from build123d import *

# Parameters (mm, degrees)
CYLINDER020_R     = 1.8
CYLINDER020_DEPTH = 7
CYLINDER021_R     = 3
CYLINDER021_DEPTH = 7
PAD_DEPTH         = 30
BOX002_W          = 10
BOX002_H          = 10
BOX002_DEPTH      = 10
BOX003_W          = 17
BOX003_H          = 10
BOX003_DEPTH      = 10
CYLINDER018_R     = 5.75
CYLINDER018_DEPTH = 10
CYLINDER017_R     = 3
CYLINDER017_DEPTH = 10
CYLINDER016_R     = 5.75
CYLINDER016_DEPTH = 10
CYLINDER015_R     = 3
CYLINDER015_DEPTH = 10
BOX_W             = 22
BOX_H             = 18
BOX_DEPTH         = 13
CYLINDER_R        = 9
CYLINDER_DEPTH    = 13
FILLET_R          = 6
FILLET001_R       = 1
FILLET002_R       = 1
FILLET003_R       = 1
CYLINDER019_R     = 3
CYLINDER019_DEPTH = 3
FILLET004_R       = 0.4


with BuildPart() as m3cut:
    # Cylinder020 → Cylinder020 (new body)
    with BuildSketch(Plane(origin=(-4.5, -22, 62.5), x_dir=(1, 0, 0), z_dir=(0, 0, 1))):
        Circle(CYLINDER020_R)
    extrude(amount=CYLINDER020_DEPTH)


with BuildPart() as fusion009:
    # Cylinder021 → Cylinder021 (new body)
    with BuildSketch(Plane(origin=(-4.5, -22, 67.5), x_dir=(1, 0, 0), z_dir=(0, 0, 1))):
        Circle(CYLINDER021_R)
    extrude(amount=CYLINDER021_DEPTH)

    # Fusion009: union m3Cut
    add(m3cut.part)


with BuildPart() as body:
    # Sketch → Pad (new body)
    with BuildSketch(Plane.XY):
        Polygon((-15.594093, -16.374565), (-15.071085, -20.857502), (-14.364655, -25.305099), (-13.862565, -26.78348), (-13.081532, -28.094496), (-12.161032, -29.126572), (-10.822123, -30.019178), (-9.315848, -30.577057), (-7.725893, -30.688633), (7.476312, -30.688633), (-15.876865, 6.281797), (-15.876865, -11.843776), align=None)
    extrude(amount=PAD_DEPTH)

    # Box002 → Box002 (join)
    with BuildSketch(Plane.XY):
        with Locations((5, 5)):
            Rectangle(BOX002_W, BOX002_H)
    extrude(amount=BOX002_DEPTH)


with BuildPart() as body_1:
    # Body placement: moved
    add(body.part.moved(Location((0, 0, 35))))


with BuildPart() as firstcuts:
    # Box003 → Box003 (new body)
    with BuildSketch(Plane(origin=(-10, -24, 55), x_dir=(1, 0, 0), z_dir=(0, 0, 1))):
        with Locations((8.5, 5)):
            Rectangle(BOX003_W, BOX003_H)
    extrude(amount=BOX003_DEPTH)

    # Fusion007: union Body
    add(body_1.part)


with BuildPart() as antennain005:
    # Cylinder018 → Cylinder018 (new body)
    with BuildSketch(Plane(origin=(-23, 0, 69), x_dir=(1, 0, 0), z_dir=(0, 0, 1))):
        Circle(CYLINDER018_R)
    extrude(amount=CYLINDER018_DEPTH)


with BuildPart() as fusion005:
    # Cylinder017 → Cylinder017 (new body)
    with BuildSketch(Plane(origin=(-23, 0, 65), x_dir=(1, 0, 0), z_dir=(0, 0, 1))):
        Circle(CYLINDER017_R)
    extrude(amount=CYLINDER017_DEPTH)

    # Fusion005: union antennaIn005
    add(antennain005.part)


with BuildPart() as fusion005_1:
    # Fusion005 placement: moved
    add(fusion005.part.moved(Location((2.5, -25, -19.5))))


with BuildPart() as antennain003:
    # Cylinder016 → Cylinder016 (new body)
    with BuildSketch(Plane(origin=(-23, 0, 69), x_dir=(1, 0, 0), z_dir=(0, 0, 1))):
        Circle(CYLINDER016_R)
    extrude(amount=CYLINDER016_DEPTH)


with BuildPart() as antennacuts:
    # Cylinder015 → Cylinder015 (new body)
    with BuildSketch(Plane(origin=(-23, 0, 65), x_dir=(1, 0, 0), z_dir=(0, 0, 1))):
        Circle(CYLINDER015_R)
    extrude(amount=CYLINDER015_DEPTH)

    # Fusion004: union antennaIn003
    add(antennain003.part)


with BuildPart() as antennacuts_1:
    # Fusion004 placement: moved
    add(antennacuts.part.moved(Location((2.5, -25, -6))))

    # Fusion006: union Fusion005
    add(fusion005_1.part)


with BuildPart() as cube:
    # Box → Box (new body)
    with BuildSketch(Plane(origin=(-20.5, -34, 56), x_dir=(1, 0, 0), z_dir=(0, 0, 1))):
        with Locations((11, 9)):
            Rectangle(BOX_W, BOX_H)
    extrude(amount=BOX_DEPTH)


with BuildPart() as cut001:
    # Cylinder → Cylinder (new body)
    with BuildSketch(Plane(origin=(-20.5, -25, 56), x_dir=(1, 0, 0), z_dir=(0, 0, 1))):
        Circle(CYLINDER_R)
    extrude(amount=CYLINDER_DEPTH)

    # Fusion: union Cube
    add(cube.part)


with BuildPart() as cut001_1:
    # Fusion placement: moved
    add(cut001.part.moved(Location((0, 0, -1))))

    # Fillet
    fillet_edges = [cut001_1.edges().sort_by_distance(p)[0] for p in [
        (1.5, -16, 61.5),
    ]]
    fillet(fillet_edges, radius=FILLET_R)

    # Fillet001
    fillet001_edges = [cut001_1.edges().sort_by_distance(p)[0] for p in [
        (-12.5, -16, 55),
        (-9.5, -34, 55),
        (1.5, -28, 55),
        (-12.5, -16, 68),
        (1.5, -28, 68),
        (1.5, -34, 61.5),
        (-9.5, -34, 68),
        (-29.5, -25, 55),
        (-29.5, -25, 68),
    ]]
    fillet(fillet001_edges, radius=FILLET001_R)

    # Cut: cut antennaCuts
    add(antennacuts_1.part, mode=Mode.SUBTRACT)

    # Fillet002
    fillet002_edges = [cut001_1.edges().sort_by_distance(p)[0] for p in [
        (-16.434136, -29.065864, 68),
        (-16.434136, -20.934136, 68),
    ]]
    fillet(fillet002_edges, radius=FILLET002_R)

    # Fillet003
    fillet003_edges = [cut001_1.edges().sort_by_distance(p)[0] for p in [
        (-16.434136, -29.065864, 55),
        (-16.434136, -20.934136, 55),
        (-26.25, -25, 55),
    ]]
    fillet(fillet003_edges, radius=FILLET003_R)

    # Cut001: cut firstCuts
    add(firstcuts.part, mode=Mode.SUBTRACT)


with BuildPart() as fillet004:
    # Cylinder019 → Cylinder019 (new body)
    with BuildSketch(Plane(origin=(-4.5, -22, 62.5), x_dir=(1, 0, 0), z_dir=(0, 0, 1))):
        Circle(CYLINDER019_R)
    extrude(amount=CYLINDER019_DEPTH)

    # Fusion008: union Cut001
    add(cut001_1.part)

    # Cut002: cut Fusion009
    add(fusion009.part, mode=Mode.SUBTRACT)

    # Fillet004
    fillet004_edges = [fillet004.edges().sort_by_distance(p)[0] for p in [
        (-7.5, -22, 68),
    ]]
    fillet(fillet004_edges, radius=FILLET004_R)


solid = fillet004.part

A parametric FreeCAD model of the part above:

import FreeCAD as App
import Part
import Sketcher
from FreeCAD import Vector


def edges_at(feature, points):
    """Names of the edges that pass closest to the given points."""
    edges = feature.Shape.Edges
    near = lambda p: min(range(len(edges)), key=lambda i: edges[i].distToShape(Part.Vertex(*p))[0])
    return sorted({f"Edge{near(p) + 1}" for p in points})


def add_polygon(sketch, points):
    """Adds a closed chain of lines whose ends are joined by coincident constraints."""
    first, n = sketch.GeometryCount, len(points)
    for a, b in zip(points, points[1:] + points[:1]):
        sketch.addGeometry(Part.LineSegment(App.Vector(*a, 0), App.Vector(*b, 0)), False)
    for i in range(n):
        sketch.addConstraint(Sketcher.Constraint("Coincident", first + i, 2, first + (i + 1) % n, 1))

doc = App.newDocument("Part")
params = doc.addObject("Spreadsheet::Sheet", "Params")
for row, (alias, value) in enumerate([
    ("sketch1_diameter", "3.6 mm"),
    ("pad1_length", "7 mm"),
    ("sketch2_diameter", "6 mm"),
    ("pad2_length", "7 mm"),
    ("pad3_length", "30 mm"),
    ("sketch4_width", "10 mm"),
    ("pad4_length", "10 mm"),
    ("sketch5_width", "17 mm"),
    ("sketch5_height", "10 mm"),
    ("pad5_length", "10 mm"),
    ("sketch6_diameter", "11.5 mm"),
    ("pad6_length", "10 mm"),
    ("sketch7_diameter", "6 mm"),
    ("pad7_length", "10 mm"),
    ("sketch8_diameter", "11.5 mm"),
    ("pad8_length", "10 mm"),
    ("sketch9_diameter", "6 mm"),
    ("pad9_length", "10 mm"),
    ("sketch10_width", "22 mm"),
    ("sketch10_height", "18 mm"),
    ("pad10_length", "13 mm"),
    ("sketch11_diameter", "18 mm"),
    ("pad11_length", "13 mm"),
    ("fillet_radius", "6 mm"),
    ("fillet2_radius", "1 mm"),
    ("fillet3_radius", "1 mm"),
    ("fillet4_radius", "1 mm"),
    ("sketch12_diameter", "6 mm"),
    ("pad12_length", "3 mm"),
    ("fillet5_radius", "0.4 mm"),
], start=1):
    params.set(f"A{row}", alias)
    params.set(f"B{row}", "=" + value)
    params.setAlias(f"B{row}", alias)

body = doc.addObject("PartDesign::Body", "Body")

# Sketch on XY plane
sketch1 = body.newObject("Sketcher::SketchObject", "Sketch")
sketch1.AttachmentSupport = (doc.getObject("XY_Plane"), [""])
sketch1.MapMode = "FlatFace"
sketch1.AttachmentOffset = App.Placement(Vector(0, 0, 62.5), App.Rotation())
sketch1.addGeometry(Part.Circle(Vector(-4.5, -22, 0), Vector(0, 0, 1), 1.8), False)
sketch1.addConstraint(Sketcher.Constraint("Diameter", 0, 3.6))
sketch1.addConstraint(Sketcher.Constraint("DistanceY", 0, 3, -1, 1, 22.0))
sketch1.addConstraint(Sketcher.Constraint("DistanceX", 0, 3, -1, 1, 4.5))
sketch1.setExpression("Constraints[0]", "Params.sketch1_diameter")
pad1 = body.newObject("PartDesign::Pad", "Pad")
pad1.Profile = sketch1
pad1.setExpression("Length", "Params.pad1_length")
body2 = doc.addObject("PartDesign::Body", "Body001")

# Sketch on XY plane
sketch2 = body2.newObject("Sketcher::SketchObject", "Sketch001")
sketch2.AttachmentSupport = (doc.getObject("XY_Plane001"), [""])
sketch2.MapMode = "FlatFace"
sketch2.AttachmentOffset = App.Placement(Vector(0, 0, 67.5), App.Rotation())
sketch2.addGeometry(Part.Circle(Vector(-4.5, -22, 0), Vector(0, 0, 1), 3), False)
sketch2.addConstraint(Sketcher.Constraint("Diameter", 0, 6.0))
sketch2.addConstraint(Sketcher.Constraint("DistanceY", 0, 3, -1, 1, 22.0))
sketch2.addConstraint(Sketcher.Constraint("DistanceX", 0, 3, -1, 1, 4.5))
sketch2.setExpression("Constraints[0]", "Params.sketch2_diameter")
pad2 = body2.newObject("PartDesign::Pad", "Pad001")
pad2.Profile = sketch2
pad2.setExpression("Length", "Params.pad2_length")
doc.recompute()

boolean = body2.newObject("PartDesign::Boolean", "Boolean")
boolean.Type = "Fuse"
boolean.addObjects([body])
body3 = doc.addObject("PartDesign::Body", "Body002")
body3.AllowCompound = True

# Sketch on XY plane
sketch3 = body3.newObject("Sketcher::SketchObject", "Sketch002")
sketch3.AttachmentSupport = (doc.getObject("XY_Plane002"), [""])
sketch3.MapMode = "FlatFace"
add_polygon(sketch3, [(-15.6, -16.4), (-15.1, -20.9), (-14.4, -25.3), (-13.9, -26.8), (-13.1, -28.1), (-12.2, -29.1), (-10.8, -30), (-9.3, -30.6), (-7.7, -30.7), (7.5, -30.7), (-15.9, 6.3), (-15.9, -11.8)])  # lines 0-11
sketch3.addConstraint(Sketcher.Constraint("Horizontal", 8))
sketch3.addConstraint(Sketcher.Constraint("Vertical", 10))
sketch3.addConstraint(Sketcher.Constraint("DistanceY", 0, 2, -1, 1, 20.857502))
sketch3.addConstraint(Sketcher.Constraint("DistanceY", 1, 2, -1, 1, 25.305099))
sketch3.addConstraint(Sketcher.Constraint("DistanceX", 3, 2, 4, 2, 0.9205))
sketch3.addConstraint(Sketcher.Constraint("DistanceY", 0, 2, 9, 2, 27.139299))
sketch3.addConstraint(Sketcher.Constraint("DistanceX", 9, 2, 2, 2, 2.0143))
sketch3.addConstraint(Sketcher.Constraint("Distance", 1, 4.50335))
sketch3.addConstraint(Sketcher.Constraint("Distance", 5, 1.609168))
sketch3.addConstraint(Sketcher.Constraint("Distance", 9, 43.728521))
sketch3.addConstraint(Sketcher.Constraint("DistanceX", 8, 1, 8, 2, 15.202205))
sketch3.addConstraint(Sketcher.Constraint("DistanceY", 10, 2, 10, 1, 18.125573))
sketch3.addConstraint(Sketcher.Constraint("DistanceY", 2, 2, -1, 1, 26.78348))
sketch3.addConstraint(Sketcher.Constraint("DistanceX", 3, 2, -1, 1, 13.081532))
sketch3.addConstraint(Sketcher.Constraint("DistanceY", 4, 2, -1, 1, 29.126572))
sketch3.addConstraint(Sketcher.Constraint("DistanceY", 5, 2, -1, 1, 30.019178))
sketch3.addConstraint(Sketcher.Constraint("DistanceX", 6, 2, -1, 1, 9.315848))
sketch3.addConstraint(Sketcher.Constraint("DistanceX", 1, 2, 2, 2, 0.50209))
sketch3.addConstraint(Sketcher.Constraint("DistanceY", 6, 2, 5, 2, 0.557879))
sketch3.addConstraint(Sketcher.Constraint("DistanceY", 6, 2, 3, 2, 2.482561))
sketch3.addConstraint(Sketcher.Constraint("DistanceX", 5, 2, 7, 2, 3.09623))
sketch3.addConstraint(Sketcher.Constraint("DistanceY", 7, 2, 4, 2, 1.562061))
sketch3.addConstraint(Sketcher.Constraint("DistanceX", 11, 2, 0, 2, 0.523008))
sketch3.addConstraint(Sketcher.Constraint("DistanceY", 11, 2, 10, 2, 4.530789))
pad3 = body3.newObject("PartDesign::Pad", "Pad002")
pad3.Profile = sketch3
pad3.setExpression("Length", "Params.pad3_length")

# Sketch on XY plane
sketch4 = body3.newObject("Sketcher::SketchObject", "Sketch003")
sketch4.AttachmentSupport = (doc.getObject("XY_Plane002"), [""])
sketch4.MapMode = "FlatFace"
add_polygon(sketch4, [(0, 10), (0, 0), (10, 0), (10, 10)])  # lines 0-3
sketch4.addConstraint(Sketcher.Constraint("Vertical", 0))
sketch4.addConstraint(Sketcher.Constraint("Horizontal", 1))
sketch4.addConstraint(Sketcher.Constraint("Vertical", 2))
sketch4.addConstraint(Sketcher.Constraint("Horizontal", 3))
sketch4.addConstraint(Sketcher.Constraint("Coincident", 0, 2, -1, 1))
sketch4.addConstraint(Sketcher.Constraint("Equal", 3, 0))
sketch4.addConstraint(Sketcher.Constraint("DistanceX", 1, 1, 1, 2, 10.0))
sketch4.setExpression("Constraints[10]", "Params.sketch4_width")
pad4 = body3.newObject("PartDesign::Pad", "Pad003")
pad4.Profile = sketch4
pad4.setExpression("Length", "Params.pad4_length")
body4 = doc.addObject("PartDesign::Body", "Body003")
body4.AllowCompound = True
doc.recompute()

body3.Placement = App.Placement(Vector(0, 0, 35), App.Rotation(Vector(0, 0, 1), 0))
boolean2 = body4.newObject("PartDesign::Boolean", "Boolean001")
boolean2.Type = "Fuse"
boolean2.addObjects([body3])
body5 = doc.addObject("PartDesign::Body", "Body004")
body5.AllowCompound = True

# Sketch on XY plane
sketch5 = body5.newObject("Sketcher::SketchObject", "Sketch004")
sketch5.AttachmentSupport = (doc.getObject("XY_Plane004"), [""])
sketch5.MapMode = "FlatFace"
sketch5.AttachmentOffset = App.Placement(Vector(0, 0, 55), App.Rotation())
add_polygon(sketch5, [(-10, -14), (-10, -24), (7, -24), (7, -14)])  # lines 0-3
sketch5.addConstraint(Sketcher.Constraint("Vertical", 0))
sketch5.addConstraint(Sketcher.Constraint("Horizontal", 1))
sketch5.addConstraint(Sketcher.Constraint("Vertical", 2))
sketch5.addConstraint(Sketcher.Constraint("Horizontal", 3))
sketch5.addConstraint(Sketcher.Constraint("DistanceX", 1, 1, 1, 2, 17.0))
sketch5.addConstraint(Sketcher.Constraint("DistanceY", 0, 2, 0, 1, 10.0))
sketch5.addConstraint(Sketcher.Constraint("DistanceX", 0, 2, -1, 1, 10.0))
sketch5.addConstraint(Sketcher.Constraint("DistanceY", 0, 2, -1, 1, 24.0))
sketch5.setExpression("Constraints[8]", "Params.sketch5_width")
sketch5.setExpression("Constraints[9]", "Params.sketch5_height")
pad5 = body5.newObject("PartDesign::Pad", "Pad004")
pad5.Profile = sketch5
pad5.setExpression("Length", "Params.pad5_length")
doc.recompute()

boolean3 = body5.newObject("PartDesign::Boolean", "Boolean002")
boolean3.Type = "Fuse"
boolean3.addObjects([body4])
body6 = doc.addObject("PartDesign::Body", "Body005")

# Sketch on XY plane
sketch6 = body6.newObject("Sketcher::SketchObject", "Sketch005")
sketch6.AttachmentSupport = (doc.getObject("XY_Plane005"), [""])
sketch6.MapMode = "FlatFace"
sketch6.AttachmentOffset = App.Placement(Vector(0, 0, 69), App.Rotation())
sketch6.addGeometry(Part.Circle(Vector(-23, 0, 0), Vector(0, 0, 1), 6), False)
sketch6.addConstraint(Sketcher.Constraint("PointOnObject", 0, 3, -1))
sketch6.addConstraint(Sketcher.Constraint("Diameter", 0, 11.5))
sketch6.addConstraint(Sketcher.Constraint("DistanceX", 0, 3, -1, 1, 23.0))
sketch6.setExpression("Constraints[1]", "Params.sketch6_diameter")
pad6 = body6.newObject("PartDesign::Pad", "Pad005")
pad6.Profile = sketch6
pad6.setExpression("Length", "Params.pad6_length")
body7 = doc.addObject("PartDesign::Body", "Body006")

# Sketch on XY plane
sketch7 = body7.newObject("Sketcher::SketchObject", "Sketch006")
sketch7.AttachmentSupport = (doc.getObject("XY_Plane006"), [""])
sketch7.MapMode = "FlatFace"
sketch7.AttachmentOffset = App.Placement(Vector(0, 0, 65), App.Rotation())
sketch7.addGeometry(Part.Circle(Vector(-23, 0, 0), Vector(0, 0, 1), 3), False)
sketch7.addConstraint(Sketcher.Constraint("PointOnObject", 0, 3, -1))
sketch7.addConstraint(Sketcher.Constraint("Diameter", 0, 6.0))
sketch7.addConstraint(Sketcher.Constraint("DistanceX", 0, 3, -1, 1, 23.0))
sketch7.setExpression("Constraints[1]", "Params.sketch7_diameter")
pad7 = body7.newObject("PartDesign::Pad", "Pad006")
pad7.Profile = sketch7
pad7.setExpression("Length", "Params.pad7_length")
doc.recompute()

boolean4 = body7.newObject("PartDesign::Boolean", "Boolean003")
boolean4.Type = "Fuse"
boolean4.addObjects([body6])
body8 = doc.addObject("PartDesign::Body", "Body007")
doc.recompute()

body7.Placement = App.Placement(Vector(2.5, -25, -19.5), App.Rotation(Vector(0, 0, 1), 0))
boolean5 = body8.newObject("PartDesign::Boolean", "Boolean004")
boolean5.Type = "Fuse"
boolean5.addObjects([body7])
body9 = doc.addObject("PartDesign::Body", "Body008")

# Sketch on XY plane
sketch8 = body9.newObject("Sketcher::SketchObject", "Sketch007")
sketch8.AttachmentSupport = (doc.getObject("XY_Plane008"), [""])
sketch8.MapMode = "FlatFace"
sketch8.AttachmentOffset = App.Placement(Vector(0, 0, 69), App.Rotation())
sketch8.addGeometry(Part.Circle(Vector(-23, 0, 0), Vector(0, 0, 1), 6), False)
sketch8.addConstraint(Sketcher.Constraint("PointOnObject", 0, 3, -1))
sketch8.addConstraint(Sketcher.Constraint("Diameter", 0, 11.5))
sketch8.addConstraint(Sketcher.Constraint("DistanceX", 0, 3, -1, 1, 23.0))
sketch8.setExpression("Constraints[1]", "Params.sketch8_diameter")
pad8 = body9.newObject("PartDesign::Pad", "Pad007")
pad8.Profile = sketch8
pad8.setExpression("Length", "Params.pad8_length")
body10 = doc.addObject("PartDesign::Body", "Body009")

# Sketch on XY plane
sketch9 = body10.newObject("Sketcher::SketchObject", "Sketch008")
sketch9.AttachmentSupport = (doc.getObject("XY_Plane009"), [""])
sketch9.MapMode = "FlatFace"
sketch9.AttachmentOffset = App.Placement(Vector(0, 0, 65), App.Rotation())
sketch9.addGeometry(Part.Circle(Vector(-23, 0, 0), Vector(0, 0, 1), 3), False)
sketch9.addConstraint(Sketcher.Constraint("PointOnObject", 0, 3, -1))
sketch9.addConstraint(Sketcher.Constraint("Diameter", 0, 6.0))
sketch9.addConstraint(Sketcher.Constraint("DistanceX", 0, 3, -1, 1, 23.0))
sketch9.setExpression("Constraints[1]", "Params.sketch9_diameter")
pad9 = body10.newObject("PartDesign::Pad", "Pad008")
pad9.Profile = sketch9
pad9.setExpression("Length", "Params.pad9_length")
doc.recompute()

boolean6 = body10.newObject("PartDesign::Boolean", "Boolean005")
boolean6.Type = "Fuse"
boolean6.addObjects([body9])
body11 = doc.addObject("PartDesign::Body", "Body010")
doc.recompute()

body10.Placement = App.Placement(Vector(2.5, -25, -6), App.Rotation(Vector(0, 0, 1), 0))
boolean7 = body11.newObject("PartDesign::Boolean", "Boolean006")
boolean7.Type = "Fuse"
boolean7.addObjects([body10])
doc.recompute()

boolean8 = body11.newObject("PartDesign::Boolean", "Boolean007")
boolean8.Type = "Fuse"
boolean8.addObjects([body8])
body12 = doc.addObject("PartDesign::Body", "Body011")

# Sketch on XY plane
sketch10 = body12.newObject("Sketcher::SketchObject", "Sketch009")
sketch10.AttachmentSupport = (doc.getObject("XY_Plane011"), [""])
sketch10.MapMode = "FlatFace"
sketch10.AttachmentOffset = App.Placement(Vector(0, 0, 56), App.Rotation())
add_polygon(sketch10, [(-20, -16), (-20, -34), (2, -34), (2, -16)])  # lines 0-3
sketch10.addConstraint(Sketcher.Constraint("Vertical", 0))
sketch10.addConstraint(Sketcher.Constraint("Horizontal", 1))
sketch10.addConstraint(Sketcher.Constraint("Vertical", 2))
sketch10.addConstraint(Sketcher.Constraint("Horizontal", 3))
sketch10.addConstraint(Sketcher.Constraint("DistanceX", 1, 1, 1, 2, 22.0))
sketch10.addConstraint(Sketcher.Constraint("DistanceY", 0, 2, 0, 1, 18.0))
sketch10.addConstraint(Sketcher.Constraint("DistanceY", 0, 2, -1, 1, 34.0))
sketch10.addConstraint(Sketcher.Constraint("DistanceX", 0, 2, -1, 1, 20.5))
sketch10.setExpression("Constraints[8]", "Params.sketch10_width")
sketch10.setExpression("Constraints[9]", "Params.sketch10_height")
pad10 = body12.newObject("PartDesign::Pad", "Pad009")
pad10.Profile = sketch10
pad10.setExpression("Length", "Params.pad10_length")
body13 = doc.addObject("PartDesign::Body", "Body012")

# Sketch on XY plane
sketch11 = body13.newObject("Sketcher::SketchObject", "Sketch010")
sketch11.AttachmentSupport = (doc.getObject("XY_Plane012"), [""])
sketch11.MapMode = "FlatFace"
sketch11.AttachmentOffset = App.Placement(Vector(0, 0, 56), App.Rotation())
sketch11.addGeometry(Part.Circle(Vector(-20, -25, 0), Vector(0, 0, 1), 9), False)
sketch11.addConstraint(Sketcher.Constraint("Diameter", 0, 18.0))
sketch11.addConstraint(Sketcher.Constraint("DistanceY", 0, 3, -1, 1, 25.0))
sketch11.addConstraint(Sketcher.Constraint("DistanceX", 0, 3, -1, 1, 20.5))
sketch11.setExpression("Constraints[0]", "Params.sketch11_diameter")
pad11 = body13.newObject("PartDesign::Pad", "Pad010")
pad11.Profile = sketch11
pad11.setExpression("Length", "Params.pad11_length")
doc.recompute()

boolean9 = body13.newObject("PartDesign::Boolean", "Boolean008")
boolean9.Type = "Fuse"
boolean9.addObjects([body12])
body14 = doc.addObject("PartDesign::Body", "Body013")
doc.recompute()

body13.Placement = App.Placement(Vector(0, 0, -1), App.Rotation(Vector(0, 0, 1), 0))
boolean10 = body14.newObject("PartDesign::Boolean", "Boolean009")
boolean10.Type = "Fuse"
boolean10.addObjects([body13])
doc.recompute()

fillet = body14.newObject("PartDesign::Fillet", "Fillet")
fillet.Base = (boolean10, edges_at(boolean10, [(1.5, -16, 61.5)]))
fillet.setExpression("Radius", "Params.fillet_radius")
doc.recompute()

fillet2 = body14.newObject("PartDesign::Fillet", "Fillet001")
fillet2.Base = (fillet, edges_at(fillet, [
    (-12.5, -16, 55),
    (-9.5, -34, 55),
    (1.5, -28, 55),
    (-12.5, -16, 68),
    (1.5, -28, 68),
    (1.5, -34, 61.5),
    (-9.5, -34, 68),
    (-29.5, -25, 55),
    (-29.5, -25, 68),
]))
fillet2.setExpression("Radius", "Params.fillet2_radius")
doc.recompute()

boolean11 = body14.newObject("PartDesign::Boolean", "Boolean010")
boolean11.Type = "Cut"
boolean11.addObjects([body11])
doc.recompute()

fillet3 = body14.newObject("PartDesign::Fillet", "Fillet002")
fillet3.Base = (boolean11, edges_at(boolean11, [(-26.25, -25, 68), (-26.25, -25, 68)]))
fillet3.setExpression("Radius", "Params.fillet3_radius")
doc.recompute()

fillet4 = body14.newObject("PartDesign::Fillet", "Fillet003")
fillet4.Base = (fillet3, edges_at(fillet3, [(-26.25, -25, 55), (-26.25, -25, 55), (-26.25, -25, 55)]))
fillet4.setExpression("Radius", "Params.fillet4_radius")
doc.recompute()

boolean12 = body14.newObject("PartDesign::Boolean", "Boolean011")
boolean12.Type = "Cut"
boolean12.addObjects([body5])
body15 = doc.addObject("PartDesign::Body", "Body014")

# Sketch on XY plane
sketch12 = body15.newObject("Sketcher::SketchObject", "Sketch011")
sketch12.AttachmentSupport = (doc.getObject("XY_Plane014"), [""])
sketch12.MapMode = "FlatFace"
sketch12.AttachmentOffset = App.Placement(Vector(0, 0, 62.5), App.Rotation())
sketch12.addGeometry(Part.Circle(Vector(-4.5, -22, 0), Vector(0, 0, 1), 3), False)
sketch12.addConstraint(Sketcher.Constraint("Diameter", 0, 6.0))
sketch12.addConstraint(Sketcher.Constraint("DistanceY", 0, 3, -1, 1, 22.0))
sketch12.addConstraint(Sketcher.Constraint("DistanceX", 0, 3, -1, 1, 4.5))
sketch12.setExpression("Constraints[0]", "Params.sketch12_diameter")
pad12 = body15.newObject("PartDesign::Pad", "Pad011")
pad12.Profile = sketch12
pad12.setExpression("Length", "Params.pad12_length")
doc.recompute()

boolean13 = body15.newObject("PartDesign::Boolean", "Boolean012")
boolean13.Type = "Fuse"
boolean13.addObjects([body14])
doc.recompute()

boolean14 = body15.newObject("PartDesign::Boolean", "Boolean013")
boolean14.Type = "Cut"
boolean14.addObjects([body2])
doc.recompute()

fillet5 = body15.newObject("PartDesign::Fillet", "Fillet004")
fillet5.Base = (boolean14, edges_at(boolean14, [(-7.5, -22, 68)]))
fillet5.setExpression("Radius", "Params.fillet5_radius")

doc.recompute()
